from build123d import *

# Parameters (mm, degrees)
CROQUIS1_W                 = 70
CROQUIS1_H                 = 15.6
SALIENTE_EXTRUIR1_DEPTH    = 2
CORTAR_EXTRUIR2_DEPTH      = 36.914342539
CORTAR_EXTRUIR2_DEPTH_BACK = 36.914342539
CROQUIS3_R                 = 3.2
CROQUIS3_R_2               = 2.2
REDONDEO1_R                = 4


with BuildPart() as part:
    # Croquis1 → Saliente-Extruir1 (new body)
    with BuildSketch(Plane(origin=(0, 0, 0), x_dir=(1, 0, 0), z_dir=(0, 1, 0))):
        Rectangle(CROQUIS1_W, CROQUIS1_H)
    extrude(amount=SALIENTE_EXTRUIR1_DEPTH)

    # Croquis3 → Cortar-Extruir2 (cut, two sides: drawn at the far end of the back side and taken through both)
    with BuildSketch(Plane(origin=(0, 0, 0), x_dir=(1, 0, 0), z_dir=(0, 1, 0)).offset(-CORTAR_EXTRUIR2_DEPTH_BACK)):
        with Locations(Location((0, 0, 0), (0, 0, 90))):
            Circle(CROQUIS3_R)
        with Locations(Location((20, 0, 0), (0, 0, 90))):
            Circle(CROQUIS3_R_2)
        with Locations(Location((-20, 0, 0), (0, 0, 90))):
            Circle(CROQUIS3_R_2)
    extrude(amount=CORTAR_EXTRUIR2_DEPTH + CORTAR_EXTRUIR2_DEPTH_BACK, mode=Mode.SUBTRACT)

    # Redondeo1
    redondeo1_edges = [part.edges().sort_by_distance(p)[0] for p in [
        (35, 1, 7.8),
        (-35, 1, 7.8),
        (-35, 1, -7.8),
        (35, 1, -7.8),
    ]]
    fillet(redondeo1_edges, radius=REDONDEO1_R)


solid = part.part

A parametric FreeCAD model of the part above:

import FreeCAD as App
import Part
import Sketcher
from FreeCAD import Vector


def edges_at(feature, points):
    """Names of the edges that pass closest to the given points."""
    edges = feature.Shape.Edges
    near = lambda p: min(range(len(edges)), key=lambda i: edges[i].distToShape(Part.Vertex(*p))[0])
    return sorted({f"Edge{near(p) + 1}" for p in points})

doc = App.newDocument("Part")
body = doc.addObject("PartDesign::Body", "Body")

sketch1 = doc.addObject("Sketcher::SketchObject", "Sketch")
body.addObject(sketch1)
sketch1.AttachmentSupport = (doc.XZ_Plane, [""])
sketch1.MapMode = "FlatFace"
sketch1.addGeometry([
    Part.LineSegment(Vector(-35, -8, 0), Vector(-35, 8, 0)),
    Part.LineSegment(Vector(-35, 8, 0), Vector(35, 8, 0)),
    Part.LineSegment(Vector(35, 8, 0), Vector(35, -8, 0)),
    Part.LineSegment(Vector(35, -8, 0), Vector(-35, -8, 0)),
], False)
sketch1.addConstraint([
    Sketcher.Constraint("Coincident", 0, 2, 1, 1),
    Sketcher.Constraint("Coincident", 1, 2, 2, 1),
    Sketcher.Constraint("Coincident", 2, 2, 3, 1),
    Sketcher.Constraint("Coincident", 3, 2, 0, 1),
    Sketcher.Constraint("Vertical", 0),
    Sketcher.Constraint("Horizontal", 1),
    Sketcher.Constraint("Vertical", 2),
    Sketcher.Constraint("Horizontal", 3),
    Sketcher.Constraint("Symmetric", 0, 2, 2, 2, -1, 1),
    Sketcher.Constraint("DistanceX", 1, 1, 1, 2, 70.0),
    Sketcher.Constraint("DistanceY", 0, 1, 0, 2, 15.6),
])
pad1 = doc.addObject("PartDesign::Pad", "Pad")
body.addObject(pad1)
pad1.Profile = sketch1
pad1.Length = 2
pad1.Reversed = True

sketch2 = doc.addObject("Sketcher::SketchObject", "Sketch001")
body.addObject(sketch2)
sketch2.AttachmentSupport = (doc.XZ_Plane, [""])
sketch2.MapMode = "FlatFace"
sketch2.addGeometry([
    Part.Circle(Vector(0, 0, 0), Vector(0, 0, 1), 3.2),
    Part.Circle(Vector(20, 0, 0), Vector(0, 0, 1), 2.2),
    Part.Circle(Vector(-20, 0, 0), Vector(0, 0, 1), 2.2),
], False)
sketch2.addConstraint([
    Sketcher.Constraint("Coincident", 0, 3, -1, 1),
    Sketcher.Constraint("Equal", 1, 2),
    Sketcher.Constraint("Symmetric", 1, 3, 2, 3, -1, 1),
    Sketcher.Constraint("PointOnObject", 1, 3, -1),
    Sketcher.Constraint("Diameter", 0, 6.4),
    Sketcher.Constraint("Diameter", 1, 4.4),
    Sketcher.Constraint("DistanceX", -1, 1, 1, 3, 20.0),
])
pocket1 = doc.addObject("PartDesign::Pocket", "Pocket")
body.addObject(pocket1)
pocket1.Profile = sketch2
pocket1.Type = "ThroughAll"
pocket1.Midplane = True
doc.recompute()

fillet = doc.addObject("PartDesign::Fillet", "Fillet")
body.addObject(fillet)
fillet.Base = (pocket1, edges_at(pocket1, [
    (35, 1, 7.8),
    (-35, 1, 7.8),
    (-35, 1, -7.8),
    (35, 1, -7.8),
]))
fillet.Radius = 4

doc.recompute()
